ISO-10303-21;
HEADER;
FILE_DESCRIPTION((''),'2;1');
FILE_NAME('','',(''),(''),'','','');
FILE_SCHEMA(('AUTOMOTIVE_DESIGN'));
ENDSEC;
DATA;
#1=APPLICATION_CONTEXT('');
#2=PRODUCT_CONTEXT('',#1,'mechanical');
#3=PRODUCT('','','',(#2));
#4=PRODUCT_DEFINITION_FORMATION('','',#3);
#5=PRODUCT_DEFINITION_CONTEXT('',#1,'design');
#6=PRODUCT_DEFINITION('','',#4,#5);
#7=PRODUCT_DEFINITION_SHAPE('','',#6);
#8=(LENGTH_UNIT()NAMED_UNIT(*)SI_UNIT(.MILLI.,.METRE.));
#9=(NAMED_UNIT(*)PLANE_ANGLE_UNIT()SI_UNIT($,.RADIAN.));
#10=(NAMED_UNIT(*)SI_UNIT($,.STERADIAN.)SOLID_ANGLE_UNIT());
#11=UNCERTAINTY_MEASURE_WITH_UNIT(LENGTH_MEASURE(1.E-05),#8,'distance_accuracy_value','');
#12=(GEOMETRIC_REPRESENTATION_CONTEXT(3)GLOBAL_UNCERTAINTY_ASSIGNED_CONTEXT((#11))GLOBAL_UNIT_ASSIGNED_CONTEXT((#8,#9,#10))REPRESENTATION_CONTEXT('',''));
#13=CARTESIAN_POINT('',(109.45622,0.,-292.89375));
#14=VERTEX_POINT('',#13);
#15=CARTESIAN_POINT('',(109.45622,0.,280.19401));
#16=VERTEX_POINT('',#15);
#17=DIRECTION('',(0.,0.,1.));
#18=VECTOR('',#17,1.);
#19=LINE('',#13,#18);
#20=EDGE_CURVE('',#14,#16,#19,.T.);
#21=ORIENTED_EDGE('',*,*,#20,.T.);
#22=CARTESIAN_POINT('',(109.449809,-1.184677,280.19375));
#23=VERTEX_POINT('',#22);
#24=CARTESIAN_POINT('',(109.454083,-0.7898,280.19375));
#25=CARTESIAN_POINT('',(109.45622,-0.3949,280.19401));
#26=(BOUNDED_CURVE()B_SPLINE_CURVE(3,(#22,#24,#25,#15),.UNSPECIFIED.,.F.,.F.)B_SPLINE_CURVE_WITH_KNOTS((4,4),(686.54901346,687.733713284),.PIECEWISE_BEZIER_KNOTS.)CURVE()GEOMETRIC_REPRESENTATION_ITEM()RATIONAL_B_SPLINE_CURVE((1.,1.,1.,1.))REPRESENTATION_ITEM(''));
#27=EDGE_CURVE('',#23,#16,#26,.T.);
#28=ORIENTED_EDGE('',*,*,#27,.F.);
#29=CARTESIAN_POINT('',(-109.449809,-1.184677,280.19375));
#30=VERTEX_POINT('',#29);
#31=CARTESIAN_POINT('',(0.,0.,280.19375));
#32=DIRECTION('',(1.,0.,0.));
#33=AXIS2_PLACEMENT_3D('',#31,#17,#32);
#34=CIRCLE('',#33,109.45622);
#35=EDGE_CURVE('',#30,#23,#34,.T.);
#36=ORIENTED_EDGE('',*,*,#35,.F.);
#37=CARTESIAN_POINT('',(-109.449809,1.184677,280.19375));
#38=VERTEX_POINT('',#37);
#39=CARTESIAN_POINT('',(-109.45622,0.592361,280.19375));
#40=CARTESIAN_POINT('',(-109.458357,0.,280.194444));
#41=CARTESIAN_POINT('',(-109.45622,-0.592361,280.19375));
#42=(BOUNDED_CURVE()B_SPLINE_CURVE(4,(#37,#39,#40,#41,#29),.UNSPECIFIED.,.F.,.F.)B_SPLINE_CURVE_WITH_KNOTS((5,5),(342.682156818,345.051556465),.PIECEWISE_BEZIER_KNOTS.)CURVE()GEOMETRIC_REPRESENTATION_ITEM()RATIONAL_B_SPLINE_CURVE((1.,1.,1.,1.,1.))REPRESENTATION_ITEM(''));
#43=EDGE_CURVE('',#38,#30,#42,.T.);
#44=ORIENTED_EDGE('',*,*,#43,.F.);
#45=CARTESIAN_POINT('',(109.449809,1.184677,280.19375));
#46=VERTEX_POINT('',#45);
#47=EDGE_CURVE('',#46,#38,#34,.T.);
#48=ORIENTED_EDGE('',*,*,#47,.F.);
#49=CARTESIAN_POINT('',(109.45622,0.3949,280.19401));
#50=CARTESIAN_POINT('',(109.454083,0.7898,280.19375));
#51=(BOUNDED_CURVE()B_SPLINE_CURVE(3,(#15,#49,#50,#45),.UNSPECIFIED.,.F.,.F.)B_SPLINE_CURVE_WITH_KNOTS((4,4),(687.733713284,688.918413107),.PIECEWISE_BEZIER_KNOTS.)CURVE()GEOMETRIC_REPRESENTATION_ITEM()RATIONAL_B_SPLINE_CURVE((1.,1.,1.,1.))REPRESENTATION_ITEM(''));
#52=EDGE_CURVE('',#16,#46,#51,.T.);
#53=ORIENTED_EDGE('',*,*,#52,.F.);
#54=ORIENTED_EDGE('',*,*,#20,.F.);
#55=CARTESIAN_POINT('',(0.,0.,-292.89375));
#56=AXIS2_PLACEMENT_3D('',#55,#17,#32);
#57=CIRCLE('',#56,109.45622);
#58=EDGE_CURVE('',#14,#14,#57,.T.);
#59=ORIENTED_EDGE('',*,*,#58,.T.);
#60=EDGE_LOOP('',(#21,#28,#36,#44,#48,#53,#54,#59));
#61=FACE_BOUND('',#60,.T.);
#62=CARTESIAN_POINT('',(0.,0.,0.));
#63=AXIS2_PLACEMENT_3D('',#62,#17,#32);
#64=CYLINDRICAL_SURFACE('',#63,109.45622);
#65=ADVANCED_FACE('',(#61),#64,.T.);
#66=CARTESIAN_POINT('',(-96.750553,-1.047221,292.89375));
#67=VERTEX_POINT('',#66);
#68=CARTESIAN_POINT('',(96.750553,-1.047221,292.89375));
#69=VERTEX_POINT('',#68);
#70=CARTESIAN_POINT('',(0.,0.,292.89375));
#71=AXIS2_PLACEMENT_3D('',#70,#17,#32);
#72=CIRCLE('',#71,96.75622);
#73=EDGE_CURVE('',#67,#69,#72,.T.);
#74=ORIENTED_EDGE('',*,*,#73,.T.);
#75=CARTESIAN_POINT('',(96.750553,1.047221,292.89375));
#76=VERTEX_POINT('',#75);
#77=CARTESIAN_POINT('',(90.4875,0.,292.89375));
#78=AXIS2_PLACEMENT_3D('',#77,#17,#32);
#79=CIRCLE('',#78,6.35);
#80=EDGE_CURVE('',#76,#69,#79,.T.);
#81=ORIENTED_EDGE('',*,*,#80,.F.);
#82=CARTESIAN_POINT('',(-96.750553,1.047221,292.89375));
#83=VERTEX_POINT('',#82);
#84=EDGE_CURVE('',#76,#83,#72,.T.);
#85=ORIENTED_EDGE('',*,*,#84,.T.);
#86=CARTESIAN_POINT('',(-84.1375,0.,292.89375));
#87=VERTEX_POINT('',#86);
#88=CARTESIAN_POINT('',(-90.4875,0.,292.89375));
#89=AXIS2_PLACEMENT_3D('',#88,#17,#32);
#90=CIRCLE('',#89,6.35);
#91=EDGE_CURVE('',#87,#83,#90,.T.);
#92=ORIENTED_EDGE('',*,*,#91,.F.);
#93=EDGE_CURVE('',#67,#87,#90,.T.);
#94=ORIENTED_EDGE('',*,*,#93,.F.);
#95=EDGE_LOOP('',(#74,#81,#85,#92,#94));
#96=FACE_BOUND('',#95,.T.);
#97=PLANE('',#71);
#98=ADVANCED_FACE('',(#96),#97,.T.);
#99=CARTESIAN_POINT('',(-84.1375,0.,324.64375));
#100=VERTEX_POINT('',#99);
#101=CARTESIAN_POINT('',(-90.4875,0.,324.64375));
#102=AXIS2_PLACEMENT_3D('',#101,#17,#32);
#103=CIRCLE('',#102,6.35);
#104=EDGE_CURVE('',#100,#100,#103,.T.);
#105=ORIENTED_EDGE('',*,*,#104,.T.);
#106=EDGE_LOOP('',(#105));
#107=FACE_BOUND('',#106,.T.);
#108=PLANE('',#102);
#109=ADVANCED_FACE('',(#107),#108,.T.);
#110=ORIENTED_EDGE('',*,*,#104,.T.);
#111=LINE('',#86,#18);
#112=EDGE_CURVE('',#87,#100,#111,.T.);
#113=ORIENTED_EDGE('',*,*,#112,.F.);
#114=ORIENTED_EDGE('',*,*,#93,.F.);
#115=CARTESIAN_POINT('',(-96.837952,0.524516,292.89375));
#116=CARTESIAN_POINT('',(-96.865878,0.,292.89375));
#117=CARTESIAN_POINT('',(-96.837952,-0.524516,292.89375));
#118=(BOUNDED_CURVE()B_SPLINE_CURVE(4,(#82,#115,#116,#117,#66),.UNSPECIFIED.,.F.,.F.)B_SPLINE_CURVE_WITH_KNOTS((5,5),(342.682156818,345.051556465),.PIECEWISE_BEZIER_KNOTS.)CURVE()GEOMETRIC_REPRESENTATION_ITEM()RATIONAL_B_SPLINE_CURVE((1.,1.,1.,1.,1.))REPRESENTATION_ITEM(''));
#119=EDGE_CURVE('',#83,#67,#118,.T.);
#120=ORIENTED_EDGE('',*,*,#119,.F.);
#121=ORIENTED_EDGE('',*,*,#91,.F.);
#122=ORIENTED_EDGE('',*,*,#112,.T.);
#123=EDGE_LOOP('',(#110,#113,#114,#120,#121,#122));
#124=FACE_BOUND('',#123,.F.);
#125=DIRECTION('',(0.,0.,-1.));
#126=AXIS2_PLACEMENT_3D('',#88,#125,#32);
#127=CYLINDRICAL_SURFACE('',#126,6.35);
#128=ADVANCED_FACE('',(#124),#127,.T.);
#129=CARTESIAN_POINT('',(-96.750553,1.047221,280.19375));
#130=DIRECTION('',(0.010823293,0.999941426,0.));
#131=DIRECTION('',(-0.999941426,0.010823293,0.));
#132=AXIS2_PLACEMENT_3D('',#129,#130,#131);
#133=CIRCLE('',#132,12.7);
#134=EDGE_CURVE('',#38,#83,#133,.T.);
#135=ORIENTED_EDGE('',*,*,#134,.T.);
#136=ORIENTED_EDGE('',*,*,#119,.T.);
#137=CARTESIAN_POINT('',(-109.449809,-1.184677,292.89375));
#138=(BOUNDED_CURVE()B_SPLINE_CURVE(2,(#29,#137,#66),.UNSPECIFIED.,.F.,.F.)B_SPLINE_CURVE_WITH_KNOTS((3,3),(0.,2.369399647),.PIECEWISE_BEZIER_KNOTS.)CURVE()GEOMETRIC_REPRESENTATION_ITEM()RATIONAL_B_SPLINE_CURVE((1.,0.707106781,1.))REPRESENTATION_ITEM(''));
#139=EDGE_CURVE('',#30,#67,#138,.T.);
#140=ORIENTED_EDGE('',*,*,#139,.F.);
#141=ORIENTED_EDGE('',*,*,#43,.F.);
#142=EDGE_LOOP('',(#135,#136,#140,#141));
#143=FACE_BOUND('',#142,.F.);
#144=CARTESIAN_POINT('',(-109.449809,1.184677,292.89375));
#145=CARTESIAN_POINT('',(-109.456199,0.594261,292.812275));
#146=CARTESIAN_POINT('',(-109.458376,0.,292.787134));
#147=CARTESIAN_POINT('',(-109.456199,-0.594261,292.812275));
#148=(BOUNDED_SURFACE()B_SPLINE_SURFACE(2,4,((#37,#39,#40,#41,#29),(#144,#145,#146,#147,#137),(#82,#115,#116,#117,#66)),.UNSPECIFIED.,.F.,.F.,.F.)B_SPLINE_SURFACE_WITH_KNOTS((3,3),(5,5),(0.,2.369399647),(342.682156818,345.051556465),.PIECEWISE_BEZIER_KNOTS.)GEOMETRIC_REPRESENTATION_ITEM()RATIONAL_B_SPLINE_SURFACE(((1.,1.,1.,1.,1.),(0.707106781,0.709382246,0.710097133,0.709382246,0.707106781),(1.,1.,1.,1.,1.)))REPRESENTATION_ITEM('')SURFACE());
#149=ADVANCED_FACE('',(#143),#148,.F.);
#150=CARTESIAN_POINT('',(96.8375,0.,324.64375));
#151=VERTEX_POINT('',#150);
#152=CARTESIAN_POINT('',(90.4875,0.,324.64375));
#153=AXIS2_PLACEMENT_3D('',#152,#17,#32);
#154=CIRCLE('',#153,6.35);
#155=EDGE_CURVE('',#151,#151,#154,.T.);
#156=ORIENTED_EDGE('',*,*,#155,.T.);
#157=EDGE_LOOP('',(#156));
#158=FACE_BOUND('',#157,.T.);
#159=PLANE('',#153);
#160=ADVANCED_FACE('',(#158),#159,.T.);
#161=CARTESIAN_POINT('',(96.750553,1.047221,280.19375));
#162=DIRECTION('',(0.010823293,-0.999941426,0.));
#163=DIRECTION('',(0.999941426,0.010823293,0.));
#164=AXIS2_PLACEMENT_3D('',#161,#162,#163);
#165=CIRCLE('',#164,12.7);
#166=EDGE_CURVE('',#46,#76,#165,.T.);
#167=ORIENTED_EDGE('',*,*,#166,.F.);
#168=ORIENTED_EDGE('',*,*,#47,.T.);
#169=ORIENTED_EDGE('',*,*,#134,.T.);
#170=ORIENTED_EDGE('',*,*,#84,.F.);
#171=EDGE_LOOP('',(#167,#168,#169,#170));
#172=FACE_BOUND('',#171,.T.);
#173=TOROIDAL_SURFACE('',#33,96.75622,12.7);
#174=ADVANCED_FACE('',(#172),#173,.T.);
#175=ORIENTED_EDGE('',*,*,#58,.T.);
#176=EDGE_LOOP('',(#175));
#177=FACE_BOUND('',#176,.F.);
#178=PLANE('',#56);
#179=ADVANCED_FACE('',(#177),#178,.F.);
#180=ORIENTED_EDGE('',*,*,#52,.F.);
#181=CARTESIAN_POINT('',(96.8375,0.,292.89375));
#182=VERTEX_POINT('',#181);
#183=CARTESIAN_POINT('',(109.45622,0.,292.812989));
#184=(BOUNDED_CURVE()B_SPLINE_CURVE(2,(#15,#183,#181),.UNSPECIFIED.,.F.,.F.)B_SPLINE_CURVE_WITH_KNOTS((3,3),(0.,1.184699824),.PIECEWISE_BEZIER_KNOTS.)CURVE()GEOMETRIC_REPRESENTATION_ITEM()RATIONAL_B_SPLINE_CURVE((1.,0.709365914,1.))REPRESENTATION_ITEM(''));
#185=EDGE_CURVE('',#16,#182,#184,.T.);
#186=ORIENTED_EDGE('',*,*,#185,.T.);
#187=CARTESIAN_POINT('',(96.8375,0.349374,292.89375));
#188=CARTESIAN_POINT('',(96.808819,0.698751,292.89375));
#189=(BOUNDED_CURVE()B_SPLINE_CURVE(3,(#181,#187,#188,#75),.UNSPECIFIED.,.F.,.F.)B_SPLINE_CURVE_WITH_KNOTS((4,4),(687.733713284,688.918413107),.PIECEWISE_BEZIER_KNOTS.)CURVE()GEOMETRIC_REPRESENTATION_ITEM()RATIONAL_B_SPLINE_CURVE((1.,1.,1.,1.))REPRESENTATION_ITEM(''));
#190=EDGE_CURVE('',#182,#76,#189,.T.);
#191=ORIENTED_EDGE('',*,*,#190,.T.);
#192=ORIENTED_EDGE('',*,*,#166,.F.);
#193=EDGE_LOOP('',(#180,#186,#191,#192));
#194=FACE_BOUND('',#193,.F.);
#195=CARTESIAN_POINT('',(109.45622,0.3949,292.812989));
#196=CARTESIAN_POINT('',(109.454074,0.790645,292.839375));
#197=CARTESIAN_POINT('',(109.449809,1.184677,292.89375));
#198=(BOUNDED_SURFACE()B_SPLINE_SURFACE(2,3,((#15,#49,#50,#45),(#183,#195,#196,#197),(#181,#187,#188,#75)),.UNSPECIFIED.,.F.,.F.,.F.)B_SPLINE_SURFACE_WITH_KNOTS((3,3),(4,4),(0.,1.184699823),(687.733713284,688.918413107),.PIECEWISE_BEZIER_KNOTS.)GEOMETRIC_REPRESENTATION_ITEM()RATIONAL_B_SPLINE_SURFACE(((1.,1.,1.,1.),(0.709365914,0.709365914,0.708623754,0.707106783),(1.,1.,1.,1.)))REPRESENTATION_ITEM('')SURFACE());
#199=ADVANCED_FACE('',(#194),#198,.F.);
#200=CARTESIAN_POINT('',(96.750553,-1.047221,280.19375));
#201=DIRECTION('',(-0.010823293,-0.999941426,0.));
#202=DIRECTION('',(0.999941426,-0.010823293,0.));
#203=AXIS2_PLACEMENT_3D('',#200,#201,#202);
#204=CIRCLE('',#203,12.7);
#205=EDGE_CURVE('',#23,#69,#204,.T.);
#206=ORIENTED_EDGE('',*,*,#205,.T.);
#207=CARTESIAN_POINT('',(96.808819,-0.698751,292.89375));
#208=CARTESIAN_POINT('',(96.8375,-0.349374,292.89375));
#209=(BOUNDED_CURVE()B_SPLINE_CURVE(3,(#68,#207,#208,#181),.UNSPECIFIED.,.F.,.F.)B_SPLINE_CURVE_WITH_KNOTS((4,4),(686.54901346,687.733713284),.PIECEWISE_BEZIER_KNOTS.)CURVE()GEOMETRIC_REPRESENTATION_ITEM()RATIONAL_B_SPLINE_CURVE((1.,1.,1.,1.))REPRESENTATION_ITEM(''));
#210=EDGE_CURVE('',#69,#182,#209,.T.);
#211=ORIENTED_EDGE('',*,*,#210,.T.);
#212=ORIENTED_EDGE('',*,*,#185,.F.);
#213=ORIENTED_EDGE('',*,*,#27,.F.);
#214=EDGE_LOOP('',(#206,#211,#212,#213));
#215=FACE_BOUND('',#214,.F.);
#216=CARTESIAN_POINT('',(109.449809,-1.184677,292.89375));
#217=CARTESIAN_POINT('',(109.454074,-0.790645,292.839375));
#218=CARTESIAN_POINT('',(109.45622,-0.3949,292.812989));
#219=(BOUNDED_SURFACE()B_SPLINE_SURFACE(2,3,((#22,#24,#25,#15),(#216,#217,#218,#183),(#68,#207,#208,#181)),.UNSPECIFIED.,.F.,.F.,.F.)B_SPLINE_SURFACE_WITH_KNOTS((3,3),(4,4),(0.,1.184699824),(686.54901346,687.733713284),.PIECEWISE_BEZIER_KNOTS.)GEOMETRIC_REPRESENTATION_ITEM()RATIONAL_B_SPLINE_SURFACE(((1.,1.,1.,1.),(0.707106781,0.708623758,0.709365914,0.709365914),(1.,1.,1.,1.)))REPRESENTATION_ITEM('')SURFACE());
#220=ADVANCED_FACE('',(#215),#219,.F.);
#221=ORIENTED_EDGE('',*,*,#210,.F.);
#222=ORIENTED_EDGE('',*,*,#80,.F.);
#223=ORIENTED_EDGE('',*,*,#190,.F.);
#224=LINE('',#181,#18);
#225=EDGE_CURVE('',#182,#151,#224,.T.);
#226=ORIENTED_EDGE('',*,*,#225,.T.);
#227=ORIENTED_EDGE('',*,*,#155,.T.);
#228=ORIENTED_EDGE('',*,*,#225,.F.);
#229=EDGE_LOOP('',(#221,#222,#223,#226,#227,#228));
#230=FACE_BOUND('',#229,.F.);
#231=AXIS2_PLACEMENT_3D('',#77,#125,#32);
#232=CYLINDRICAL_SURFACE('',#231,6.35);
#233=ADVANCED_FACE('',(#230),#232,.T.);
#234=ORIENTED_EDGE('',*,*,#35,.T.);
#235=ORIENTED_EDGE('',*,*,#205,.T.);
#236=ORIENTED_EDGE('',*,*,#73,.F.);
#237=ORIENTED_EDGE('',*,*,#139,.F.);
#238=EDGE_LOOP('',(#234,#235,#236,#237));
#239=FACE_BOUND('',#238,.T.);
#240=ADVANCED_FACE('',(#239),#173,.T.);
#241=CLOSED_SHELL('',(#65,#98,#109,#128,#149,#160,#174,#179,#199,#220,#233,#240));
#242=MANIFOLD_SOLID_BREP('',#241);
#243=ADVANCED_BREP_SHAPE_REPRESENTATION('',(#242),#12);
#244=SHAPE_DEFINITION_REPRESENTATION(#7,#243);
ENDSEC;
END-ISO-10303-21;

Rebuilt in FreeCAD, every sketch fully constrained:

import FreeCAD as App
import Part
import Sketcher
from FreeCAD import Vector
Q = App.Units.Quantity


def edges_at(feature, points):
    """Names of the edges that pass closest to the given points."""
    edges = feature.Shape.Edges
    near = lambda p: min(range(len(edges)), key=lambda i: edges[i].distToShape(Part.Vertex(*p))[0])
    return sorted({f"Edge{near(p) + 1}" for p in points})

doc = App.newDocument("Part")
params = doc.addObject("Spreadsheet::Sheet", "Params")
for row, (alias, value) in enumerate([
    ("pad1_length", "23.0625 in"),
    ("sketch2_diameter", "0.5 in"),
    ("pad2_length", "1.25 in"),
    ("fillet_radius", "0.5 in"),
], start=1):
    params.set(f"A{row}", alias)
    params.set(f"B{row}", "=" + value)
    params.setAlias(f"B{row}", alias)

body = doc.addObject("PartDesign::Body", "Body")

sketch1 = body.newObject("Sketcher::SketchObject", "Sketch")
sketch1.AttachmentSupport = (doc.getObject("XY_Plane"), [""])
sketch1.MapMode = "FlatFace"
sketch1.addGeometry(Part.Circle(Vector(0, 0, 0), Vector(0, 0, 1), 109), False)
sketch1.addConstraint([
    Sketcher.Constraint("Coincident", 0, 3, -1, 1),
    Sketcher.Constraint("Diameter", 0, Q("8.6186 in")),
])
pad1 = body.newObject("PartDesign::Pad", "Pad")
pad1.Profile = sketch1
pad1.setExpression("Length", "Params.pad1_length")
pad1.Midplane = True

sketch2 = body.newObject("Sketcher::SketchObject", "Sketch001")
sketch2.AttachmentSupport = (doc.getObject("XY_Plane"), [""])
sketch2.MapMode = "FlatFace"
sketch2.AttachmentOffset = App.Placement(Vector(0, 0, 11.53125 * 25.4), App.Rotation())
sketch2.addGeometry([
    Part.Circle(Vector(90, 0, 0), Vector(0, 0, 1), 6),
    Part.Circle(Vector(-90, 0, 0), Vector(0, 0, 1), 6),
], False)
sketch2.addConstraint([
    Sketcher.Constraint("Equal", 0, 1),
    Sketcher.Constraint("Symmetric", 0, 3, 1, 3, -1, 1),
    Sketcher.Constraint("PointOnObject", 0, 3, -1),
    Sketcher.Constraint("Diameter", 0, Q("0.5 in")),
    Sketcher.Constraint("DistanceX", -1, 1, 0, 3, Q("3.5625 in")),
])
sketch2.setExpression("Constraints[3]", "Params.sketch2_diameter")
pad2 = body.newObject("PartDesign::Pad", "Pad001")
pad2.Profile = sketch2
pad2.setExpression("Length", "Params.pad2_length")
doc.recompute()

fillet = body.newObject("PartDesign::Fillet", "Fillet")
fillet.Base = (pad2, edges_at(pad2, [(-109.456, 0, 292.894)]))
fillet.setExpression("Radius", "Params.fillet_radius")

doc.recompute()
